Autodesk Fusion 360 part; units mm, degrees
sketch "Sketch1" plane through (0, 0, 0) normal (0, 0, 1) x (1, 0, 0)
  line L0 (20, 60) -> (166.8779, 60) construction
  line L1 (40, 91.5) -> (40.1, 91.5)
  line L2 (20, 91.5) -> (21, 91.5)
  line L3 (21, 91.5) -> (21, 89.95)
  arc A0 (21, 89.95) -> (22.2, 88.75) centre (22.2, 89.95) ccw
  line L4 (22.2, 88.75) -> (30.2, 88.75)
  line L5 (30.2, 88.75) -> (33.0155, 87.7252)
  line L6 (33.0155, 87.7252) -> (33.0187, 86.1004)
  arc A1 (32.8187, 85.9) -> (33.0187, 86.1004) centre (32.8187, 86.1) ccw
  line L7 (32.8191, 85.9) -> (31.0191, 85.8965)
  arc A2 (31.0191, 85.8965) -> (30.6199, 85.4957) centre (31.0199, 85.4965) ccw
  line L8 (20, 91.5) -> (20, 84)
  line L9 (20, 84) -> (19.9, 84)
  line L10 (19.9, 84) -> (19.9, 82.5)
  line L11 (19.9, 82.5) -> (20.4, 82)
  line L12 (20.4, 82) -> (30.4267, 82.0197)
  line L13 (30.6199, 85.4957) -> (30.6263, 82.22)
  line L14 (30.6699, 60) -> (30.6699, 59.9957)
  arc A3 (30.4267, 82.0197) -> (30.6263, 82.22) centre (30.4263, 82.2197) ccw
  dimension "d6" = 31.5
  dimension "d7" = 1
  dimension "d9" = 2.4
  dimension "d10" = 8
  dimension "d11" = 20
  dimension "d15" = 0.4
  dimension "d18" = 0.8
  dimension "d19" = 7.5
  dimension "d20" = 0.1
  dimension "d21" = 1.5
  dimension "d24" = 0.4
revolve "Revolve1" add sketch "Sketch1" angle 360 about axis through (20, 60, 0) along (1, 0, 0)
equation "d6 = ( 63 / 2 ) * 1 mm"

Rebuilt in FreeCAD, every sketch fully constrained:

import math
import FreeCAD as App
import Part
import Sketcher
Q = App.Units.Quantity

doc = App.newDocument("Part")
body = doc.addObject("PartDesign::Body", "Body")

# Sketch on XY plane
sketch1 = body.newObject("Sketcher::SketchObject", "Sketch")
sketch1.AttachmentSupport = (doc.getObject("XY_Plane"), [""])
sketch1.MapMode = "FlatFace"
sketch1.addGeometry([
    Part.LineSegment(App.Vector(21, 91.5, 0), App.Vector(20, 91.5, 0)),  # 0
    Part.LineSegment(App.Vector(20, 91.5, 0), App.Vector(20, 84, 0)),  # 1
    Part.LineSegment(App.Vector(20, 84, 0), App.Vector(19.9, 84, 0)),  # 2
    Part.LineSegment(App.Vector(19.9, 84, 0), App.Vector(19.9, 82.5, 0)),  # 3
    Part.LineSegment(App.Vector(19.9, 82.5, 0), App.Vector(20.4, 82, 0)),  # 4
    Part.LineSegment(App.Vector(20.4, 82, 0), App.Vector(30.43, 82.02, 0)),  # 5
    Part.ArcOfCircle(Part.Circle(App.Vector(30.43, 82.22, 0), App.Vector(0, 0, 1), 0.2), math.radians(-90), math.radians(0)),  # 6
    Part.LineSegment(App.Vector(30.63, 82.22, 0), App.Vector(30.62, 85.5, 0)),  # 7
    Part.ArcOfCircle(Part.Circle(App.Vector(31.02, 85.5, 0), App.Vector(0, 0, 1), 0.4), math.radians(90), math.radians(180)),  # 8
    Part.LineSegment(App.Vector(31.02, 85.9, 0), App.Vector(32.82, 85.9, 0)),  # 9
    Part.ArcOfCircle(Part.Circle(App.Vector(32.82, 86.1, 0), App.Vector(0, 0, 1), 0.2), math.radians(-90), math.radians(0)),  # 10
    Part.LineSegment(App.Vector(33.02, 86.1, 0), App.Vector(33.02, 87.73, 0)),  # 11
    Part.LineSegment(App.Vector(33.02, 87.73, 0), App.Vector(30.2, 88.75, 0)),  # 12
    Part.LineSegment(App.Vector(30.2, 88.75, 0), App.Vector(22.2, 88.75, 0)),  # 13
    Part.ArcOfCircle(Part.Circle(App.Vector(22.2, 89.95, 0), App.Vector(0, 0, 1), 1.2), math.radians(180), math.radians(270)),  # 14
    Part.LineSegment(App.Vector(21, 89.95, 0), App.Vector(21, 91.5, 0)),  # 15
], False)
sketch1.addGeometry(Part.LineSegment(App.Vector(19.9, 60, 0), App.Vector(33.02, 60, 0)), True)  # axis
sketch1.addConstraint([
    Sketcher.Constraint("Coincident", 0, 2, 1, 1),
    Sketcher.Constraint("Coincident", 1, 2, 2, 1),
    Sketcher.Constraint("Coincident", 2, 2, 3, 1),
    Sketcher.Constraint("Coincident", 3, 2, 4, 1),
    Sketcher.Constraint("Coincident", 4, 2, 5, 1),
    Sketcher.Constraint("Tangent", 5, 2, 6, 1),
    Sketcher.Constraint("Tangent", 6, 2, 7, 1),
    Sketcher.Constraint("Tangent", 7, 2, 8, 2),
    Sketcher.Constraint("Tangent", 8, 1, 9, 1),
    Sketcher.Constraint("Coincident", 9, 2, 10, 1),
    Sketcher.Constraint("Tangent", 10, 2, 11, 1),
    Sketcher.Constraint("Coincident", 11, 2, 12, 1),
    Sketcher.Constraint("Coincident", 12, 2, 13, 1),
    Sketcher.Constraint("Tangent", 13, 2, 14, 2),
    Sketcher.Constraint("Tangent", 14, 1, 15, 1),
    Sketcher.Constraint("Coincident", 15, 2, 0, 1),
    Sketcher.Constraint("Horizontal", 0),
    Sketcher.Constraint("Vertical", 1),
    Sketcher.Constraint("Horizontal", 2),
    Sketcher.Constraint("Vertical", 3),
    Sketcher.Constraint("Horizontal", 13),
    Sketcher.Constraint("Vertical", 15),
    Sketcher.Constraint("Horizontal", 16),
    Sketcher.Constraint("Equal", 6, 10),
    Sketcher.Constraint("Perpendicular", 5, 7),
    Sketcher.Constraint("Perpendicular", 7, 9),
    Sketcher.Constraint("Perpendicular", 9, 11),
    Sketcher.Constraint("Vertical", 10, 3, 9, 2),
    Sketcher.Constraint("Vertical", 3, 2, 16, 1),
    Sketcher.Constraint("Vertical", 10, 2, 16, 2),
    Sketcher.Constraint("Radius", 6, 0.2),
    Sketcher.Constraint("Radius", 8, 0.4),
    Sketcher.Constraint("Radius", 14, 1.2),
    Sketcher.Constraint("DistanceX", 0, 2, 0, 1, 1.0),
    Sketcher.Constraint("DistanceX", 13, 2, 13, 1, 8.0),
    Sketcher.Constraint("DistanceX", 2, 2, 2, 1, 0.1),
    Sketcher.Constraint("DistanceY", 1, 2, 1, 1, 7.5),
    Sketcher.Constraint("DistanceY", 3, 2, 3, 1, 1.5),
    Sketcher.Constraint("DistanceX", -1, 1, 0, 2, 20.0),
    Sketcher.Constraint("DistanceX", 1, 2, 4, 2, 0.4),
    Sketcher.Constraint("Angle", 4, Q("-45 deg")),
    Sketcher.Constraint("Angle", 12, Q("159.9992 deg")),
    Sketcher.Constraint("DistanceY", -1, 1, 1, 2, 84.0),
    Sketcher.Constraint("DistanceY", -1, 1, 16, 1, 60.0),
    Sketcher.Constraint("DistanceY", 15, 1, 15, 2, 1.55),
    Sketcher.Constraint("DistanceY", -1, 1, 10, 3, 86.1),
    Sketcher.Constraint("DistanceX", -1, 1, 8, 3, 31.02),
    Sketcher.Constraint("DistanceY", -1, 1, 6, 2, 82.22),
    Sketcher.Constraint("DistanceX", 16, 1, 16, 2, 13.1187),
])
revolution = body.newObject("PartDesign::Revolution", "Revolution")
revolution.Profile = sketch1
revolution.ReferenceAxis = (sketch1, ["Axis0"])
revolution.Angle = 360

doc.recompute()
